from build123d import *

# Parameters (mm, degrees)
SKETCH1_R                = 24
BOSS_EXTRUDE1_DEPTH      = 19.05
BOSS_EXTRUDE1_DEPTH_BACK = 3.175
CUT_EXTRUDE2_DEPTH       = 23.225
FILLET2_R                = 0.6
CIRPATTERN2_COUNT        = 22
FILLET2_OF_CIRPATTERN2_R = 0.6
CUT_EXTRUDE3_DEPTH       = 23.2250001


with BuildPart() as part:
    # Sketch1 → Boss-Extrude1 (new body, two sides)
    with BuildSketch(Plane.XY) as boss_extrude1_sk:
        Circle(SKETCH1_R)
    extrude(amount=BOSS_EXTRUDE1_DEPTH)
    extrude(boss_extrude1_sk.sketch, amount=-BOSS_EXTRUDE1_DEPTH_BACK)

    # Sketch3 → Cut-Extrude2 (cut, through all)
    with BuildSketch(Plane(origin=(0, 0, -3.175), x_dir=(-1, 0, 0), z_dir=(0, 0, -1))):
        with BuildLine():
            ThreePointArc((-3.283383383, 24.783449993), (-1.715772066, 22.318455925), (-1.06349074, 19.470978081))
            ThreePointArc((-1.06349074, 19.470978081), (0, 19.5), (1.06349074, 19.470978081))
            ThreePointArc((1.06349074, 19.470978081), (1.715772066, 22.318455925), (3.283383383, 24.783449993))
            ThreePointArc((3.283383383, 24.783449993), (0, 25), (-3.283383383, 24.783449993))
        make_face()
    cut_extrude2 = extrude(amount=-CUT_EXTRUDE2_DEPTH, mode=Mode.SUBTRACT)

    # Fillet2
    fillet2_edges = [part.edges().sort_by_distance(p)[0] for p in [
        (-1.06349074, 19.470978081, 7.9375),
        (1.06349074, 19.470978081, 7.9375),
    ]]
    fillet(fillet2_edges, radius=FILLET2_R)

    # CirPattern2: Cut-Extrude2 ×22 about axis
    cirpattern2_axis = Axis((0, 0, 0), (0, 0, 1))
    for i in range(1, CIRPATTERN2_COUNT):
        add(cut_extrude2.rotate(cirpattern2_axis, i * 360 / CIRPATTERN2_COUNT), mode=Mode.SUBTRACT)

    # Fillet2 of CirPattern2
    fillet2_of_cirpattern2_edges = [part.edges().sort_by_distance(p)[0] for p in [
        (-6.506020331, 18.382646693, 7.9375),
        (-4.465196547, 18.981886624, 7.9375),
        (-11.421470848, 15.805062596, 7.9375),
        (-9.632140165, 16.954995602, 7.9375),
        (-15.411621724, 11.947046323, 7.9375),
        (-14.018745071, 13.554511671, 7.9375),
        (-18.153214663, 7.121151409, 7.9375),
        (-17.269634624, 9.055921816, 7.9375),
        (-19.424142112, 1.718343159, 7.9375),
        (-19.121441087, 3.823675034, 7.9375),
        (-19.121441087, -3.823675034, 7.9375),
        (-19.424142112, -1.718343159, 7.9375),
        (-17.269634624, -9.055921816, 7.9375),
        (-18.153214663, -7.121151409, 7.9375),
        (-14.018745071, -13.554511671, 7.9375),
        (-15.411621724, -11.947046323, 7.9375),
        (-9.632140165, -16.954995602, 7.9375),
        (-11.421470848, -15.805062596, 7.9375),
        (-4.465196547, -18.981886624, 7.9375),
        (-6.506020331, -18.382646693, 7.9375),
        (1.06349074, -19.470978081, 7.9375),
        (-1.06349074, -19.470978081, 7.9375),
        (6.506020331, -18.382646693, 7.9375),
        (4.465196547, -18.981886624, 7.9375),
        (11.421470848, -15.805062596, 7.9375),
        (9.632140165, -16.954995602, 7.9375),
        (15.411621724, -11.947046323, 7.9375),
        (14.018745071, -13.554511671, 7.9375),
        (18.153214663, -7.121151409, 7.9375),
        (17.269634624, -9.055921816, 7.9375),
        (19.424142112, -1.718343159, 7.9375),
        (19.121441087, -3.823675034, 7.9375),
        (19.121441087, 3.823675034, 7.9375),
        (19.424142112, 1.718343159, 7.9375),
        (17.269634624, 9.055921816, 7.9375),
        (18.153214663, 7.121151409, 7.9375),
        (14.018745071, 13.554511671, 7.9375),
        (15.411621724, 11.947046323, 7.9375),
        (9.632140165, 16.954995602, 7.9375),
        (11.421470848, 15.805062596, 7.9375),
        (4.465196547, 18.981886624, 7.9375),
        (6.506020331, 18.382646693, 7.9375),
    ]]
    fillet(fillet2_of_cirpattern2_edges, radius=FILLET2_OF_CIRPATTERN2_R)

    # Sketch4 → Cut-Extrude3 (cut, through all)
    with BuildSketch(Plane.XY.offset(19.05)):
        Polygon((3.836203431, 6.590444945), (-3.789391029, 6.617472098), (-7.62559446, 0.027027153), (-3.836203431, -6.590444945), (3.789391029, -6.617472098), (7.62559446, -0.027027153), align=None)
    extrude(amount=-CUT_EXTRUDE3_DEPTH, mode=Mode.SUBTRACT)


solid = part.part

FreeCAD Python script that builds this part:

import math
import FreeCAD as App
import Part
import Sketcher

V = App.Vector
Q = App.Units.Quantity


def edges_at(feature, points):
    """Names of the edges that pass closest to the given points."""
    edges = feature.Shape.Edges
    near = lambda p: min(range(len(edges)), key=lambda i: edges[i].distToShape(Part.Vertex(*p))[0])
    return sorted({f"Edge{near(p) + 1}" for p in points})


def add_polygon(sketch, points):
    """Adds a closed chain of lines whose ends are joined by coincident constraints."""
    first, n = sketch.GeometryCount, len(points)
    for a, b in zip(points, points[1:] + points[:1]):
        sketch.addGeometry(Part.LineSegment(App.Vector(*a, 0), App.Vector(*b, 0)), False)
    for i in range(n):
        sketch.addConstraint(Sketcher.Constraint("Coincident", first + i, 2, first + (i + 1) % n, 1))

doc = App.newDocument("Part")
body = doc.addObject("PartDesign::Body", "Body")

# Sketch on XY plane
sketch1 = body.newObject("Sketcher::SketchObject", "Sketch")
sketch1.AttachmentSupport = (doc.getObject("XY_Plane"), [""])
sketch1.MapMode = "FlatFace"
sketch1.addGeometry(Part.Circle(V(0, 0, 0), V(0, 0, 1), 24), False)
sketch1.addConstraint(Sketcher.Constraint("Coincident", 0, 3, -1, 1))
sketch1.addConstraint(Sketcher.Constraint("Diameter", 0, Q("48 mm")))
pad1 = body.newObject("PartDesign::Pad", "Pad")
pad1.Profile = sketch1
pad1.Type = "TwoLengths"
pad1.Length = 19.05
pad1.Length2 = 3.175

# Sketch on XY plane
sketch2 = body.newObject("Sketcher::SketchObject", "Sketch001")
sketch2.AttachmentSupport = (doc.getObject("XY_Plane"), [""])
sketch2.MapMode = "FlatFace"
sketch2.AttachmentOffset = App.Placement(V(0, 0, -3.175), App.Rotation())
sketch2.addGeometry(Part.ArcOfCircle(Part.Circle(V(9.7, 19, 0), V(0, 0, 1), 8.6), math.radians(138), math.radians(177)), False)
sketch2.addGeometry(Part.ArcOfCircle(Part.Circle(V(0, 0, 0), V(0, 0, 1), 19.5), math.radians(86.87), math.radians(93.13)), False)
sketch2.addGeometry(Part.ArcOfCircle(Part.Circle(V(-9.7, 19, 0), V(0, 0, 1), 8.6), math.radians(3), math.radians(42)), False)
sketch2.addGeometry(Part.ArcOfCircle(Part.Circle(V(0, 0, 0), V(0, 0, 1), 25), math.radians(82.45), math.radians(97.55)), False)
sketch2.addConstraint(Sketcher.Constraint("Coincident", 0, 2, 1, 1))
sketch2.addConstraint(Sketcher.Constraint("Coincident", 1, 2, 2, 1))
sketch2.addConstraint(Sketcher.Constraint("Coincident", 2, 2, 3, 2))
sketch2.addConstraint(Sketcher.Constraint("Coincident", 3, 1, 0, 1))
sketch2.addConstraint(Sketcher.Constraint("Coincident", 1, 3, -1, 1))
sketch2.addConstraint(Sketcher.Constraint("Coincident", 3, 3, -1, 1))
sketch2.addConstraint(Sketcher.Constraint("Equal", 0, 2))
sketch2.addConstraint(Sketcher.Constraint("Symmetric", 0, 3, 2, 3, -2))
sketch2.addConstraint(Sketcher.Constraint("Radius", 3, Q("25 mm")))
sketch2.addConstraint(Sketcher.Constraint("Radius", 1, Q("19.5 mm")))
sketch2.addConstraint(Sketcher.Constraint("Radius", 0, Q("8.602163 mm")))
sketch2.addConstraint(Sketcher.Constraint("DistanceX", -1, 1, 0, 3, Q("9.652851 mm")))
sketch2.addConstraint(Sketcher.Constraint("DistanceX", -1, 1, 0, 2, Q("1.063491 mm")))
pocket1 = body.newObject("PartDesign::Pocket", "Pocket")
pocket1.Profile = sketch2
pocket1.Type = "ThroughAll"
pocket1.Reversed = True
doc.recompute()

fillet = body.newObject("PartDesign::Fillet", "Fillet")
fillet.Base = (pocket1, edges_at(pocket1, [(-1.063, 19.471, 7.938), (1.063, 19.471, 7.938)]))
fillet.Radius = 0.6
doc.recompute()

polarpattern = body.newObject("PartDesign::PolarPattern", "PolarPattern")
polarpattern.Originals = [pocket1]
polarpattern.Axis = (doc.getObject("Z_Axis"), [""])
polarpattern.Angle = 360
polarpattern.Occurrences = 22
body.Tip = polarpattern
doc.recompute()

fillet2 = body.newObject("PartDesign::Fillet", "Fillet001")
fillet2.Base = (polarpattern, edges_at(polarpattern, [
    (-6.506, 18.383, 7.938),
    (-4.465, 18.982, 7.938),
    (-11.421, 15.805, 7.938),
    (-9.632, 16.955, 7.938),
    (-15.412, 11.947, 7.938),
    (-14.019, 13.555, 7.938),
    (-18.153, 7.121, 7.938),
    (-17.27, 9.056, 7.938),
    (-19.424, 1.718, 7.938),
    (-19.121, 3.824, 7.938),
    (-19.121, -3.824, 7.938),
    (-19.424, -1.718, 7.938),
    (-17.27, -9.056, 7.938),
    (-18.153, -7.121, 7.938),
    (-14.019, -13.555, 7.938),
    (-15.412, -11.947, 7.938),
    (-9.632, -16.955, 7.938),
    (-11.421, -15.805, 7.938),
    (-4.465, -18.982, 7.938),
    (-6.506, -18.383, 7.938),
    (1.063, -19.471, 7.938),
    (-1.063, -19.471, 7.938),
    (6.506, -18.383, 7.938),
    (4.465, -18.982, 7.938),
    (11.421, -15.805, 7.938),
    (9.632, -16.955, 7.938),
    (15.412, -11.947, 7.938),
    (14.019, -13.555, 7.938),
    (18.153, -7.121, 7.938),
    (17.27, -9.056, 7.938),
    (19.424, -1.718, 7.938),
    (19.121, -3.824, 7.938),
    (19.121, 3.824, 7.938),
    (19.424, 1.718, 7.938),
    (17.27, 9.056, 7.938),
    (18.153, 7.121, 7.938),
    (14.019, 13.555, 7.938),
    (15.412, 11.947, 7.938),
    (9.632, 16.955, 7.938),
    (11.421, 15.805, 7.938),
    (4.465, 18.982, 7.938),
    (6.506, 18.383, 7.938),
]))
fillet2.Radius = 0.6

# Sketch on XY plane
sketch3 = body.newObject("Sketcher::SketchObject", "Sketch002")
sketch3.AttachmentSupport = (doc.getObject("XY_Plane"), [""])
sketch3.MapMode = "FlatFace"
sketch3.AttachmentOffset = App.Placement(V(0, 0, 19.05), App.Rotation())
add_polygon(sketch3, [(4, 7), (-4, 7), (-8, 0), (-4, -7), (4, -7), (8, 0)])  # lines 0-5
sketch3.addConstraint(Sketcher.Constraint("Symmetric", 0, 2, 3, 2, -1, 1))
sketch3.addConstraint(Sketcher.Constraint("Symmetric", 1, 2, 4, 2, -1, 1))
sketch3.addConstraint(Sketcher.Constraint("Symmetric", 2, 2, 5, 2, -1, 1))
sketch3.addConstraint(Sketcher.Constraint("Equal", 0, 1))
sketch3.addConstraint(Sketcher.Constraint("Equal", 1, 2))
sketch3.addConstraint(Sketcher.Constraint("DistanceY", 3, 2, 1, 2, Q("6.644499 mm")))
sketch3.addConstraint(Sketcher.Constraint("DistanceX", 0, 2, -1, 1, Q("3.789391 mm")))
sketch3.addConstraint(Sketcher.Constraint("DistanceX", 1, 2, 2, 2, Q("3.789391 mm")))
sketch3.addConstraint(Sketcher.Constraint("DistanceX", 1, 2, 4, 2, Q("15.251189 mm")))
pocket2 = body.newObject("PartDesign::Pocket", "Pocket001")
pocket2.Profile = sketch3
pocket2.Type = "ThroughAll"

doc.recompute()
